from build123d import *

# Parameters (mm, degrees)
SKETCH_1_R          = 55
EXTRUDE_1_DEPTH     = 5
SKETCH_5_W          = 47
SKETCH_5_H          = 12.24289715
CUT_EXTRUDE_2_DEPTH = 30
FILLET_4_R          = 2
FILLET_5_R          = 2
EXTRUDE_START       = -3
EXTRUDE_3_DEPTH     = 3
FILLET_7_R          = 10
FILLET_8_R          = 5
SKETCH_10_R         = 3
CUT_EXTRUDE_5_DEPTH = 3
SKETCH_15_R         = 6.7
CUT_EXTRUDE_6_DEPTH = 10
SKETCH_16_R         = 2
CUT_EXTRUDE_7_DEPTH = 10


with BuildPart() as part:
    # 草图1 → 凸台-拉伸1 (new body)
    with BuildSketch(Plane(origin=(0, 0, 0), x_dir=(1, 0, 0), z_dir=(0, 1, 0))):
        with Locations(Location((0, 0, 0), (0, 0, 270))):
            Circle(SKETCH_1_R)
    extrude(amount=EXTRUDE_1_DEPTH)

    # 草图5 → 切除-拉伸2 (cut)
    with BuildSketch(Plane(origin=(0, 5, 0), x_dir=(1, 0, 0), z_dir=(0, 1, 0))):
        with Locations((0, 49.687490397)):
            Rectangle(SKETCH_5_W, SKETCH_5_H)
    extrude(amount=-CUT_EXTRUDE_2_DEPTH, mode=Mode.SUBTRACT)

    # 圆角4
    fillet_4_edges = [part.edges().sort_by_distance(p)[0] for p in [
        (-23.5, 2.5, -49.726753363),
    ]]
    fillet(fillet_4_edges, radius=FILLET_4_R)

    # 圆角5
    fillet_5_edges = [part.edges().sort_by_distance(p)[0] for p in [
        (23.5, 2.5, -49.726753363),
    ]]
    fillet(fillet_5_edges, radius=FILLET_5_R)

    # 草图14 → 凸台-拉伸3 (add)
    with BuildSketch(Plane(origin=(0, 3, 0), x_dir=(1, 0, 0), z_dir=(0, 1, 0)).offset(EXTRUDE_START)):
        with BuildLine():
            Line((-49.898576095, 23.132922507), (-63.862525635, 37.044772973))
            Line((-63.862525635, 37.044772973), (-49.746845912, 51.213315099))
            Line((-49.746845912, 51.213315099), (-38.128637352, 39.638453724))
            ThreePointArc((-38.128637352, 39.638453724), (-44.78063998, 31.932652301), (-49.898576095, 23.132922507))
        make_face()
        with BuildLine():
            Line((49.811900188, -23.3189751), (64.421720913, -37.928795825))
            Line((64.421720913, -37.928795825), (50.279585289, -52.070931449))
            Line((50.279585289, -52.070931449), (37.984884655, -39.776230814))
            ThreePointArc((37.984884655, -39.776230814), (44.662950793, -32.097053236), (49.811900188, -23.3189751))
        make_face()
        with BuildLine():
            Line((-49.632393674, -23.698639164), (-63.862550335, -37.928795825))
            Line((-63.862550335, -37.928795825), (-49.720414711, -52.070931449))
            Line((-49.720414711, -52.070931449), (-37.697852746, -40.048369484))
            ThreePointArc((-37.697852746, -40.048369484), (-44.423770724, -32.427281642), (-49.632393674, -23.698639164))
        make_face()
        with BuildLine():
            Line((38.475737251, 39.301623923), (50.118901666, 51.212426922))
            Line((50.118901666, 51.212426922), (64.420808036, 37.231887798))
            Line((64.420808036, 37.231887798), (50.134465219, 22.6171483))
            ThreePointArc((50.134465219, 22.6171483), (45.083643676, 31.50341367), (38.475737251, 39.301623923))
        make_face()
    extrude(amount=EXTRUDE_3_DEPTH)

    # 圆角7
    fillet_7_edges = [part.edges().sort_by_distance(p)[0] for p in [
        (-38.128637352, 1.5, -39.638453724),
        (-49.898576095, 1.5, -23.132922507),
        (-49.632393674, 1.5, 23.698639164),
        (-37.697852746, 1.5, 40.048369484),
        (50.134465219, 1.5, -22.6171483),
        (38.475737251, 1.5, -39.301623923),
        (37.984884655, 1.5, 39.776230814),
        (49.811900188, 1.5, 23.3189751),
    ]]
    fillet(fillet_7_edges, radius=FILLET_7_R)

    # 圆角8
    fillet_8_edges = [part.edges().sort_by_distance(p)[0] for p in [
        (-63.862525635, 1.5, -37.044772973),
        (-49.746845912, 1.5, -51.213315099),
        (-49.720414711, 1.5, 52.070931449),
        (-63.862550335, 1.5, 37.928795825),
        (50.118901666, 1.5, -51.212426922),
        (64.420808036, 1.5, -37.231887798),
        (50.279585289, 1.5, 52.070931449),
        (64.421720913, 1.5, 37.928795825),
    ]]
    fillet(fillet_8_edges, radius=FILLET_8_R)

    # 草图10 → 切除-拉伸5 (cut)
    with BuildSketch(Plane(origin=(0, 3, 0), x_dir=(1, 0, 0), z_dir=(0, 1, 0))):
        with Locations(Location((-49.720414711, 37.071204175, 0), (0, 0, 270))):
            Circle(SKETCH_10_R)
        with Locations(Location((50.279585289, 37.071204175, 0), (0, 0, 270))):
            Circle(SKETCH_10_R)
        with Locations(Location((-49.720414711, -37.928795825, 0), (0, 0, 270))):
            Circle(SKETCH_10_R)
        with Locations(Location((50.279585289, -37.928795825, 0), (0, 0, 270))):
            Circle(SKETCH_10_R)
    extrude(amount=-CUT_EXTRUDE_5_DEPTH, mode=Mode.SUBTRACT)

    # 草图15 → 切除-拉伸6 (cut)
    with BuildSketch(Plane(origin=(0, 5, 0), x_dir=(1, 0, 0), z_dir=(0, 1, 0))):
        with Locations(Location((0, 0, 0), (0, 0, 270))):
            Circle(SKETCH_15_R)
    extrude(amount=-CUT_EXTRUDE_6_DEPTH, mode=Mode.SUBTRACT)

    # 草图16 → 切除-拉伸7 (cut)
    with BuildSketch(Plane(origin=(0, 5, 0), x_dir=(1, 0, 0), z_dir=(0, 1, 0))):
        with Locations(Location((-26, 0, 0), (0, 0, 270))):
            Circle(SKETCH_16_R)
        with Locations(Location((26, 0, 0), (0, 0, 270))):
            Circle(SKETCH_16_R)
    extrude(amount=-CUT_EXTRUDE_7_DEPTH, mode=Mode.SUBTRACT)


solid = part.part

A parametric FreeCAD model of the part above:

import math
import FreeCAD as App
import Part
import Sketcher

V = App.Vector
Q = App.Units.Quantity


def edges_at(feature, points):
    """Names of the edges that pass closest to the given points."""
    edges = feature.Shape.Edges
    near = lambda p: min(range(len(edges)), key=lambda i: edges[i].distToShape(Part.Vertex(*p))[0])
    return sorted({f"Edge{near(p) + 1}" for p in points})


def add_polygon(sketch, points):
    """Adds a closed chain of lines whose ends are joined by coincident constraints."""
    first, n = sketch.GeometryCount, len(points)
    for a, b in zip(points, points[1:] + points[:1]):
        sketch.addGeometry(Part.LineSegment(App.Vector(*a, 0), App.Vector(*b, 0)), False)
    for i in range(n):
        sketch.addConstraint(Sketcher.Constraint("Coincident", first + i, 2, first + (i + 1) % n, 1))

doc = App.newDocument("Part")
body = doc.addObject("PartDesign::Body", "Body")

sketch1 = body.newObject("Sketcher::SketchObject", "Sketch")
sketch1.AttachmentSupport = (doc.getObject("XZ_Plane"), [""])
sketch1.MapMode = "FlatFace"
sketch1.addGeometry(Part.Circle(V(0, 0, 0), V(0, 0, 1), 55), False)
sketch1.addConstraint([
    Sketcher.Constraint("Coincident", 0, 3, -1, 1),
    Sketcher.Constraint("Diameter", 0, Q("110 mm")),
])
pad1 = body.newObject("PartDesign::Pad", "Pad")
pad1.Profile = sketch1
pad1.Length = 5
pad1.Reversed = True

sketch2 = body.newObject("Sketcher::SketchObject", "Sketch001")
sketch2.AttachmentSupport = (doc.getObject("XZ_Plane"), [""])
sketch2.MapMode = "FlatFace"
sketch2.AttachmentOffset = App.Placement(V(0, 0, -5), App.Rotation())
add_polygon(sketch2, [(-24, -56), (-24, -44), (24, -44), (24, -56)])
sketch2.addConstraint([
    Sketcher.Constraint("Vertical", 0),
    Sketcher.Constraint("Horizontal", 1),
    Sketcher.Constraint("Vertical", 2),
    Sketcher.Constraint("Horizontal", 3),
    Sketcher.Constraint("DistanceX", 1, 1, 1, 2, Q("47 mm")),
    Sketcher.Constraint("DistanceX", 0, 2, -1, 1, Q("23.5 mm")),
    Sketcher.Constraint("DistanceY", 0, 1, 0, 2, Q("12.242897 mm")),
    Sketcher.Constraint("DistanceY", 0, 2, -1, 1, Q("43.566042 mm")),
])
pocket1 = body.newObject("PartDesign::Pocket", "Pocket")
pocket1.Profile = sketch2
pocket1.Length = 30
pocket1.Reversed = True
doc.recompute()

fillet = body.newObject("PartDesign::Fillet", "Fillet")
fillet.Base = (pocket1, edges_at(pocket1, [(-23.5, 2.5, -49.727)]))
fillet.Radius = 2
doc.recompute()

fillet2 = body.newObject("PartDesign::Fillet", "Fillet001")
fillet2.Base = (fillet, edges_at(fillet, [(23.5, 2.5, -49.727)]))
fillet2.Radius = 2

sketch3 = body.newObject("Sketcher::SketchObject", "Sketch002")
sketch3.AttachmentSupport = (doc.getObject("XZ_Plane"), [""])
sketch3.MapMode = "FlatFace"
sketch3.addGeometry([
    Part.LineSegment(V(-64, -37, 0), V(-50, -23, 0)),
    Part.ArcOfCircle(Part.Circle(V(0, 0, 0), V(0, 0, 1), 55), math.radians(-155), math.radians(-134)),
    Part.LineSegment(V(-38, -40, 0), V(-50, -51, 0)),
    Part.LineSegment(V(-50, -51, 0), V(-64, -37, 0)),
    Part.LineSegment(V(64, 38, 0), V(50, 23, 0)),
    Part.ArcOfCircle(Part.Circle(V(0, 0, 0), V(0, 0, 1), 55), math.radians(25), math.radians(46)),
    Part.LineSegment(V(38, 40, 0), V(50, 52, 0)),
    Part.LineSegment(V(50, 52, 0), V(64, 38, 0)),
    Part.LineSegment(V(-50, 24, 0), V(-64, 38, 0)),
    Part.LineSegment(V(-64, 38, 0), V(-50, 52, 0)),
    Part.LineSegment(V(-50, 52, 0), V(-38, 40, 0)),
    Part.ArcOfCircle(Part.Circle(V(0, 0, 0), V(0, 0, 1), 55), math.radians(133), math.radians(154)),
    Part.LineSegment(V(50, -51, 0), V(38, -39, 0)),
    Part.ArcOfCircle(Part.Circle(V(0, 0, 0), V(0, 0, 1), 55), math.radians(-46), math.radians(-24)),
    Part.LineSegment(V(50, -23, 0), V(64, -37, 0)),
    Part.LineSegment(V(64, -37, 0), V(50, -51, 0)),
], False)
sketch3.addConstraint([
    Sketcher.Constraint("Coincident", 0, 2, 1, 1),
    Sketcher.Constraint("Coincident", 1, 2, 2, 1),
    Sketcher.Constraint("Coincident", 2, 2, 3, 1),
    Sketcher.Constraint("Coincident", 3, 2, 0, 1),
    Sketcher.Constraint("Coincident", 4, 2, 5, 1),
    Sketcher.Constraint("Coincident", 5, 2, 6, 1),
    Sketcher.Constraint("Coincident", 6, 2, 7, 1),
    Sketcher.Constraint("Coincident", 7, 2, 4, 1),
    Sketcher.Constraint("Coincident", 8, 2, 9, 1),
    Sketcher.Constraint("Coincident", 9, 2, 10, 1),
    Sketcher.Constraint("Coincident", 10, 2, 11, 1),
    Sketcher.Constraint("Coincident", 11, 2, 8, 1),
    Sketcher.Constraint("Coincident", 12, 2, 13, 1),
    Sketcher.Constraint("Coincident", 13, 2, 14, 1),
    Sketcher.Constraint("Coincident", 14, 2, 15, 1),
    Sketcher.Constraint("Coincident", 15, 2, 12, 1),
    Sketcher.Constraint("Coincident", 1, 3, -1, 1),
    Sketcher.Constraint("Coincident", 5, 3, -1, 1),
    Sketcher.Constraint("Coincident", 11, 3, -1, 1),
    Sketcher.Constraint("Coincident", 13, 3, -1, 1),
    Sketcher.Constraint("Equal", 1, 5),
    Sketcher.Constraint("Equal", 5, 11),
    Sketcher.Constraint("Equal", 11, 13),
    Sketcher.Constraint("Parallel", 0, 2),
    Sketcher.Constraint("Perpendicular", 2, 3),
    Sketcher.Constraint("Parallel", 4, 6),
    Sketcher.Constraint("Perpendicular", 6, 7),
    Sketcher.Constraint("Parallel", 7, 8),
    Sketcher.Constraint("Perpendicular", 8, 9),
    Sketcher.Constraint("Perpendicular", 9, 10),
    Sketcher.Constraint("Parallel", 12, 14),
    Sketcher.Constraint("Perpendicular", 14, 15),
    Sketcher.Constraint("Horizontal", 7, 2, 8, 2),
    Sketcher.Constraint("Horizontal", 6, 2, 9, 2),
    Sketcher.Constraint("Equal", 3, 7),
    Sketcher.Constraint("Equal", 7, 9),
    Sketcher.Constraint("Equal", 9, 15),
    Sketcher.Constraint("Radius", 1, Q("55 mm")),
    Sketcher.Constraint("Distance", 3, Q("20 mm")),
    Sketcher.Constraint("Distance", 0, Q("19.711202 mm")),
    Sketcher.Constraint("DistanceX", -1, 1, 4, 2, Q("49.8119 mm")),
    Sketcher.Constraint("DistanceX", -1, 1, 15, 2, Q("50.118902 mm")),
    Sketcher.Constraint("DistanceX", 5, 2, 6, 2, Q("12.294701 mm")),
    Sketcher.Constraint("DistanceY", 12, 2, 4, 2, Q("62.620599 mm")),
    Sketcher.Constraint("Distance", 8, Q("20.124481 mm")),
    Sketcher.Constraint("Distance", 14, Q("20.437471 mm")),
    Sketcher.Constraint("DistanceX", 0, 2, 1, 2, Q("11.769939 mm")),
    Sketcher.Constraint("DistanceY", 1, 2, 0, 2, Q("16.505531 mm")),
])
pad2 = body.newObject("PartDesign::Pad", "Pad001")
pad2.Profile = sketch3
pad2.Length = 3
pad2.Reversed = True
doc.recompute()

fillet3 = body.newObject("PartDesign::Fillet", "Fillet002")
fillet3.Base = (pad2, edges_at(pad2, [
    (-38.129, 1.5, -39.638),
    (-49.899, 1.5, -23.133),
    (-49.632, 1.5, 23.699),
    (-37.698, 1.5, 40.048),
    (50.134, 1.5, -22.617),
    (38.476, 1.5, -39.302),
    (37.985, 1.5, 39.776),
    (49.812, 1.5, 23.319),
]))
fillet3.Radius = 10
doc.recompute()

fillet4 = body.newObject("PartDesign::Fillet", "Fillet003")
fillet4.Base = (fillet3, edges_at(fillet3, [
    (-63.863, 1.5, -37.045),
    (-49.747, 1.5, -51.213),
    (-49.72, 1.5, 52.071),
    (-63.863, 1.5, 37.929),
    (50.119, 1.5, -51.212),
    (64.421, 1.5, -37.232),
    (50.28, 1.5, 52.071),
    (64.422, 1.5, 37.929),
]))
fillet4.Radius = 5

sketch4 = body.newObject("Sketcher::SketchObject", "Sketch003")
sketch4.AttachmentSupport = (doc.getObject("XZ_Plane"), [""])
sketch4.MapMode = "FlatFace"
sketch4.AttachmentOffset = App.Placement(V(0, 0, -3), App.Rotation())
sketch4.addGeometry([
    Part.Circle(V(-49.7, -37.1, 0), V(0, 0, 1), 3),
    Part.Circle(V(50.3, -37.1, 0), V(0, 0, 1), 3),
    Part.Circle(V(-49.7, 37.9, 0), V(0, 0, 1), 3),
    Part.Circle(V(50.3, 37.9, 0), V(0, 0, 1), 3),
], False)
sketch4.addConstraint([
    Sketcher.Constraint("Equal", 0, 1),
    Sketcher.Constraint("Equal", 1, 2),
    Sketcher.Constraint("Equal", 2, 3),
    Sketcher.Constraint("Horizontal", 0, 3, 1, 3),
    Sketcher.Constraint("Horizontal", 2, 3, 3, 3),
    Sketcher.Constraint("Vertical", 0, 3, 2, 3),
    Sketcher.Constraint("Vertical", 1, 3, 3, 3),
    Sketcher.Constraint("Diameter", 0, Q("6 mm")),
    Sketcher.Constraint("DistanceX", 0, 3, 1, 3, Q("100 mm")),
    Sketcher.Constraint("DistanceY", 0, 3, 2, 3, Q("75 mm")),
    Sketcher.Constraint("DistanceX", 0, 3, -1, 1, Q("49.720415 mm")),
    Sketcher.Constraint("DistanceY", 0, 3, -1, 1, Q("37.071204 mm")),
])
pocket2 = body.newObject("PartDesign::Pocket", "Pocket001")
pocket2.Profile = sketch4
pocket2.Length = 3
pocket2.Reversed = True

sketch5 = body.newObject("Sketcher::SketchObject", "Sketch004")
sketch5.AttachmentSupport = (doc.getObject("XZ_Plane"), [""])
sketch5.MapMode = "FlatFace"
sketch5.AttachmentOffset = App.Placement(V(0, 0, -5), App.Rotation())
sketch5.addGeometry(Part.Circle(V(0, 0, 0), V(0, 0, 1), 7), False)
sketch5.addConstraint([
    Sketcher.Constraint("Coincident", 0, 3, -1, 1),
    Sketcher.Constraint("Diameter", 0, Q("13.4 mm")),
])
pocket3 = body.newObject("PartDesign::Pocket", "Pocket002")
pocket3.Profile = sketch5
pocket3.Length = 10
pocket3.Reversed = True

sketch6 = body.newObject("Sketcher::SketchObject", "Sketch005")
sketch6.AttachmentSupport = (doc.getObject("XZ_Plane"), [""])
sketch6.MapMode = "FlatFace"
sketch6.AttachmentOffset = App.Placement(V(0, 0, -5), App.Rotation())
sketch6.addGeometry([
    Part.Circle(V(-26, 0, 0), V(0, 0, 1), 2),
    Part.Circle(V(26, 0, 0), V(0, 0, 1), 2),
], False)
sketch6.addConstraint([
    Sketcher.Constraint("Equal", 0, 1),
    Sketcher.Constraint("Symmetric", 0, 3, 1, 3, -1, 1),
    Sketcher.Constraint("PointOnObject", 0, 3, -1),
    Sketcher.Constraint("Diameter", 0, Q("4 mm")),
    Sketcher.Constraint("DistanceX", 0, 3, -1, 1, Q("26 mm")),
])
pocket4 = body.newObject("PartDesign::Pocket", "Pocket003")
pocket4.Profile = sketch6
pocket4.Length = 10
pocket4.Reversed = True

doc.recompute()
